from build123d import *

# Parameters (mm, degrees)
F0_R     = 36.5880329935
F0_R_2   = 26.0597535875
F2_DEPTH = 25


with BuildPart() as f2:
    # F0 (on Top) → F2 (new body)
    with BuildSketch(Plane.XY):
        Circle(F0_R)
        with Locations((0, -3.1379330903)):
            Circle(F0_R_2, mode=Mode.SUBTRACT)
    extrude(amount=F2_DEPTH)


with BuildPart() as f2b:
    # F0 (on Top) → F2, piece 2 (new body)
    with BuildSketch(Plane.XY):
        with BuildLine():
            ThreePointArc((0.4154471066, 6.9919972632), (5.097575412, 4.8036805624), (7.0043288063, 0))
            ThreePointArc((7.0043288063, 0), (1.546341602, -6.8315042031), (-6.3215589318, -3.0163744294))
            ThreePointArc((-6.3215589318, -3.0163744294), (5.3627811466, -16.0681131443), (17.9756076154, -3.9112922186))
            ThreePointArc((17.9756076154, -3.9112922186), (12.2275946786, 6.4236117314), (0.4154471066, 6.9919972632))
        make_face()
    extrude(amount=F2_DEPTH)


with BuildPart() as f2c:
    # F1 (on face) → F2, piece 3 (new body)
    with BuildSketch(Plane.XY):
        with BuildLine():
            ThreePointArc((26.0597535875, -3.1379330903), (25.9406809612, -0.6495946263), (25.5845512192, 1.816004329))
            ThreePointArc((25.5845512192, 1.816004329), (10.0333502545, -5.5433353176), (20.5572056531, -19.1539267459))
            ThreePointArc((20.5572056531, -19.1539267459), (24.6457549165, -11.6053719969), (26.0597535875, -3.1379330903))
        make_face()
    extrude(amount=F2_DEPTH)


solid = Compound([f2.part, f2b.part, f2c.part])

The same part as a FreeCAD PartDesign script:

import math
import FreeCAD as App
import Part
import Sketcher
Q = App.Units.Quantity

doc = App.newDocument("Part")
body = doc.addObject("PartDesign::Body", "Body")

# Sketch on XY plane
sketch1 = body.newObject("Sketcher::SketchObject", "Sketch")
sketch1.AttachmentSupport = (doc.getObject("XY_Plane"), [""])
sketch1.MapMode = "FlatFace"
sketch1.addGeometry(Part.Circle(App.Vector(0, 0, 0), App.Vector(0, 0, 1), 37), False)
sketch1.addGeometry(Part.Circle(App.Vector(0, -3, 0), App.Vector(0, 0, 1), 26), False)
sketch1.addConstraint(Sketcher.Constraint("Coincident", 0, 3, -1, 1))
sketch1.addConstraint(Sketcher.Constraint("PointOnObject", 1, 3, -2))
sketch1.addConstraint(Sketcher.Constraint("Diameter", 0, Q("73.176066 mm")))
sketch1.addConstraint(Sketcher.Constraint("Diameter", 1, Q("52.119507 mm")))
sketch1.addConstraint(Sketcher.Constraint("DistanceY", 1, 3, -1, 1, Q("3.137933 mm")))
pad1 = body.newObject("PartDesign::Pad", "Pad")
pad1.Profile = sketch1
pad1.Length = 25
body2 = doc.addObject("PartDesign::Body", "Body001")

# Sketch on XY plane
sketch2 = body2.newObject("Sketcher::SketchObject", "Sketch001")
sketch2.AttachmentSupport = (doc.getObject("XY_Plane001"), [""])
sketch2.MapMode = "FlatFace"
sketch2.addGeometry(Part.ArcOfCircle(Part.Circle(App.Vector(0, 0, 0), App.Vector(0, 0, 1), 7), math.radians(-154), math.radians(87)), False)
sketch2.addGeometry(Part.ArcOfCircle(Part.Circle(App.Vector(6, -4, 0), App.Vector(0, 0, 1), 12), math.radians(176), math.radians(360)), False)
sketch2.addGeometry(Part.ArcOfCircle(Part.Circle(App.Vector(6, -4, 0), App.Vector(0, 0, 1), 12), math.radians(0), math.radians(116)), False)
sketch2.addConstraint(Sketcher.Constraint("Coincident", 0, 1, 1, 1))
sketch2.addConstraint(Sketcher.Constraint("Tangent", 1, 2, 2, 1))
sketch2.addConstraint(Sketcher.Constraint("Coincident", 2, 2, 0, 2))
sketch2.addConstraint(Sketcher.Constraint("Coincident", 0, 3, -1, 1))
sketch2.addConstraint(Sketcher.Constraint("Equal", 1, 2))
sketch2.addConstraint(Sketcher.Constraint("Horizontal", 2, 3, 1, 2))
sketch2.addConstraint(Sketcher.Constraint("Radius", 0, Q("7.004329 mm")))
sketch2.addConstraint(Sketcher.Constraint("Radius", 1, Q("12.165064 mm")))
sketch2.addConstraint(Sketcher.Constraint("DistanceX", 0, 1, -1, 1, Q("6.321559 mm")))
sketch2.addConstraint(Sketcher.Constraint("DistanceY", 0, 1, 2, 2, Q("10.008372 mm")))
pad2 = body2.newObject("PartDesign::Pad", "Pad001")
pad2.Profile = sketch2
pad2.Length = 25
body3 = doc.addObject("PartDesign::Body", "Body002")

# Sketch on XY plane
sketch3 = body3.newObject("Sketcher::SketchObject", "Sketch002")
sketch3.AttachmentSupport = (doc.getObject("XY_Plane002"), [""])
sketch3.MapMode = "FlatFace"
sketch3.addGeometry(Part.ArcOfCircle(Part.Circle(App.Vector(0, -3.1, 0), App.Vector(0, 0, 1), 26.1), math.radians(0), math.radians(10.96)), False)
sketch3.addGeometry(Part.ArcOfCircle(Part.Circle(App.Vector(20.8, -8.1, 0), App.Vector(0, 0, 1), 11), math.radians(64), math.radians(269)), False)
sketch3.addGeometry(Part.ArcOfCircle(Part.Circle(App.Vector(0, -3.1, 0), App.Vector(0, 0, 1), 26.1), math.radians(-38), math.radians(0)), False)
sketch3.addConstraint(Sketcher.Constraint("Coincident", 0, 2, 1, 1))
sketch3.addConstraint(Sketcher.Constraint("Coincident", 1, 2, 2, 1))
sketch3.addConstraint(Sketcher.Constraint("Tangent", 2, 2, 0, 1))
sketch3.addConstraint(Sketcher.Constraint("Equal", 0, 2))
sketch3.addConstraint(Sketcher.Constraint("PointOnObject", 0, 3, -2))
sketch3.addConstraint(Sketcher.Constraint("Horizontal", 0, 3, 2, 2))
sketch3.addConstraint(Sketcher.Constraint("Radius", 1, Q("11.039029 mm")))
sketch3.addConstraint(Sketcher.Constraint("Radius", 0, Q("26.059754 mm")))
sketch3.addConstraint(Sketcher.Constraint("DistanceX", -1, 1, 0, 2, Q("25.584551 mm")))
sketch3.addConstraint(Sketcher.Constraint("DistanceY", 1, 3, 0, 3, Q("4.978981 mm")))
sketch3.addConstraint(Sketcher.Constraint("DistanceY", 0, 3, -1, 1, Q("3.137933 mm")))
pad3 = body3.newObject("PartDesign::Pad", "Pad002")
pad3.Profile = sketch3
pad3.Length = 25

doc.recompute()
